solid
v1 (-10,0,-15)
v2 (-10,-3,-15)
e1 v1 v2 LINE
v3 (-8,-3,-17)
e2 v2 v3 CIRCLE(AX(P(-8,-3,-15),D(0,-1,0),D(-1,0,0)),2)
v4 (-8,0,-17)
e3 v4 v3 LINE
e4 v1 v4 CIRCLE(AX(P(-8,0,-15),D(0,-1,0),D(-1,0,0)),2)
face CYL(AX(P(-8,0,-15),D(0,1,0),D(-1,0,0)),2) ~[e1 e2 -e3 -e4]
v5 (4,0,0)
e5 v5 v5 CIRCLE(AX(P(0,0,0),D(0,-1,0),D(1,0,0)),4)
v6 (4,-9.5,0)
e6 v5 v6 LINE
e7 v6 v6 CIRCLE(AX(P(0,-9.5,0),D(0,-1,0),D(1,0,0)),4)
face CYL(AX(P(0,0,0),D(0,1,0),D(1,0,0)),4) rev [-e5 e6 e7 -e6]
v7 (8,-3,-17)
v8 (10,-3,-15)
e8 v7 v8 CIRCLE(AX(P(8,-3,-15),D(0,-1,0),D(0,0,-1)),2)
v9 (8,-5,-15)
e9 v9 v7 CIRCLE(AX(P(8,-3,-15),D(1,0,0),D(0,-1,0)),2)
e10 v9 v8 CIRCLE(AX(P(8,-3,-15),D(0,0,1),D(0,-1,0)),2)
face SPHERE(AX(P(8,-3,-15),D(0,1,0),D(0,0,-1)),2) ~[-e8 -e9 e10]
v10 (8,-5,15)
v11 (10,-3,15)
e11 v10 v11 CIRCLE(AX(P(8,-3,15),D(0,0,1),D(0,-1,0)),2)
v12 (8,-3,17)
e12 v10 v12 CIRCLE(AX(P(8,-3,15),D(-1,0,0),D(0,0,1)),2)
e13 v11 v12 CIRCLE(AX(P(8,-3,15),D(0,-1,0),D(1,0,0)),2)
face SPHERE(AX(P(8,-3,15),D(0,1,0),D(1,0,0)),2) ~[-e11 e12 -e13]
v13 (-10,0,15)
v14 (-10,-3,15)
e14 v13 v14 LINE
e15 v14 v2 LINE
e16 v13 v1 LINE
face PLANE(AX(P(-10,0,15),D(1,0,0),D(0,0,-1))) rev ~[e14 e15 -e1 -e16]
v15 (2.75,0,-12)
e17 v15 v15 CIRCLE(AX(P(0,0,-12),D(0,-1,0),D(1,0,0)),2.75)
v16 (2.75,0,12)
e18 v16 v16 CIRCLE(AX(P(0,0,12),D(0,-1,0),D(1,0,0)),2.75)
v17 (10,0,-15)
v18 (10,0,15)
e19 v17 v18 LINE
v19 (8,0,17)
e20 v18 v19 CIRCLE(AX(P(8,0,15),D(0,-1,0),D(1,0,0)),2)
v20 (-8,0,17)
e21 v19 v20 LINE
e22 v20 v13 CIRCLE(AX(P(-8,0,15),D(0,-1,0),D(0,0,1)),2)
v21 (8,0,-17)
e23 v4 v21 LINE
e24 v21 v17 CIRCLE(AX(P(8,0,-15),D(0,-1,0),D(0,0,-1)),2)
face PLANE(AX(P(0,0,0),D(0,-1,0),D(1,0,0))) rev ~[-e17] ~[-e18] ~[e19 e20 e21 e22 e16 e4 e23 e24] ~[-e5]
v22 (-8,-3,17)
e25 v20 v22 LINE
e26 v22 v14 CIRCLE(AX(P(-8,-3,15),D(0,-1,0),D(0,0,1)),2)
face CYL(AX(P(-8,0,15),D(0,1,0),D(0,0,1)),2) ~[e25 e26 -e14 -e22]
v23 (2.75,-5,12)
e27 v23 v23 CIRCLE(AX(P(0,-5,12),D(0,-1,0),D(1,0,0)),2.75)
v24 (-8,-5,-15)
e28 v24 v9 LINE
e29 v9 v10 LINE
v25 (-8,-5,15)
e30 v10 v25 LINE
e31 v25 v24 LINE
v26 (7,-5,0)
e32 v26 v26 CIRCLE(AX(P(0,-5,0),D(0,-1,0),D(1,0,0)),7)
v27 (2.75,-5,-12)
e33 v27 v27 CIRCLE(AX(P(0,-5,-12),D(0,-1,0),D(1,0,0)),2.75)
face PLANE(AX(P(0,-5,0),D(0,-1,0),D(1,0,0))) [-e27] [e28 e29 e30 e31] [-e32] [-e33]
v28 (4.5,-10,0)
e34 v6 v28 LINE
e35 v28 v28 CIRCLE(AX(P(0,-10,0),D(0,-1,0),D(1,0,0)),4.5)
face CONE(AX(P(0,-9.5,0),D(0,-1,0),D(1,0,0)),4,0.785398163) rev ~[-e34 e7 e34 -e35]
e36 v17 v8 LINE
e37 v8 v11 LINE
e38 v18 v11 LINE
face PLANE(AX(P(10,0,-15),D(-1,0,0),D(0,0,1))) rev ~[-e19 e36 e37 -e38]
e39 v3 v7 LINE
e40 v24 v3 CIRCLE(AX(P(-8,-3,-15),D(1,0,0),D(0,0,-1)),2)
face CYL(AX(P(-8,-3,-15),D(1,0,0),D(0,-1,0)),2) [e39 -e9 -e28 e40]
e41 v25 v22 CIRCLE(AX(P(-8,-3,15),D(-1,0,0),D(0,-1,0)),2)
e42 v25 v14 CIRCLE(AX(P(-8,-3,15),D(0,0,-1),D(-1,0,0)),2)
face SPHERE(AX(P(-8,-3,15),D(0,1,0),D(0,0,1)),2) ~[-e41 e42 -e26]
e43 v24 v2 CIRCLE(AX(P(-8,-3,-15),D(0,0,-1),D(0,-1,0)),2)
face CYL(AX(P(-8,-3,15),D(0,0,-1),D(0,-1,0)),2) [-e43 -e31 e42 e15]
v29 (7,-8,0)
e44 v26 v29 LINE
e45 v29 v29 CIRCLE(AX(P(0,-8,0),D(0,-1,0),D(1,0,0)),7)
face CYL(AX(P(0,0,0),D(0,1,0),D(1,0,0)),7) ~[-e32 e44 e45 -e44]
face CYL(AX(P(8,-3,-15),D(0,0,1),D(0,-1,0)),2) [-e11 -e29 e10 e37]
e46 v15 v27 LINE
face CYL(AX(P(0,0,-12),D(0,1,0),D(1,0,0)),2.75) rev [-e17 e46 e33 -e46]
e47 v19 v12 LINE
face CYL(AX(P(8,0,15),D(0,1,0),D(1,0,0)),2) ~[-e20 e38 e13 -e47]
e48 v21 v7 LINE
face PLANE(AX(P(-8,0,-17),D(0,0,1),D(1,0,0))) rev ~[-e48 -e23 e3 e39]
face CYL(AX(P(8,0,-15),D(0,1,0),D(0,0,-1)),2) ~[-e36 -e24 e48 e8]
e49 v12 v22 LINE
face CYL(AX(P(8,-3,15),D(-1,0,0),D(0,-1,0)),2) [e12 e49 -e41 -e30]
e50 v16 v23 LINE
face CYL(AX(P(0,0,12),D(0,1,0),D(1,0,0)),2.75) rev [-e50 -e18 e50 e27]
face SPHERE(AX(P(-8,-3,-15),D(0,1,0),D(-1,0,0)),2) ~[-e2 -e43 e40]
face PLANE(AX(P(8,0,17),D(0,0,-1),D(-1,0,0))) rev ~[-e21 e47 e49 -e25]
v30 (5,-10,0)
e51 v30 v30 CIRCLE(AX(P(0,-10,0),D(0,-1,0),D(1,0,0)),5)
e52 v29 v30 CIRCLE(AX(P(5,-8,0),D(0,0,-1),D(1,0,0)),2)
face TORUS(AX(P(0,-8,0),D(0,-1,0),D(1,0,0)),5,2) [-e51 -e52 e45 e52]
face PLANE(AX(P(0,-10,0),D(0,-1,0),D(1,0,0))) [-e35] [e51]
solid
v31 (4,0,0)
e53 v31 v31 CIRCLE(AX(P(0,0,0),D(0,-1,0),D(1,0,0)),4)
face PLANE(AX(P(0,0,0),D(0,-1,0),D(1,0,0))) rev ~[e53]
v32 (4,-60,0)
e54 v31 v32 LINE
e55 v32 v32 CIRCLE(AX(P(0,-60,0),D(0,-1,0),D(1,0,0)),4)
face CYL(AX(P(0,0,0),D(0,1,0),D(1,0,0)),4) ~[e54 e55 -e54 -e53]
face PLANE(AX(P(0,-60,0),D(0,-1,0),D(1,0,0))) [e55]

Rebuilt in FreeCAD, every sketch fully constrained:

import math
import FreeCAD as App
import Part
import Sketcher


def edges_at(feature, points):
    """Names of the edges that pass closest to the given points."""
    edges = feature.Shape.Edges
    near = lambda p: min(range(len(edges)), key=lambda i: edges[i].distToShape(Part.Vertex(*p))[0])
    return sorted({f"Edge{near(p) + 1}" for p in points})

doc = App.newDocument("Part")
body = doc.addObject("PartDesign::Body", "Body")

# Sketch on XZ plane
sketch1 = doc.addObject("Sketcher::SketchObject", "Sketch")
body.addObject(sketch1)
sketch1.AttachmentSupport = (doc.XZ_Plane, [""])
sketch1.MapMode = "FlatFace"
sketch1.addGeometry(Part.Circle(App.Vector(0, 0, 0), App.Vector(0, 0, 1), 7), False)
sketch1.addGeometry(Part.Circle(App.Vector(0, 0, 0), App.Vector(0, 0, 1), 4), False)
sketch1.addConstraint(Sketcher.Constraint("Coincident", 0, 3, -1, 1))
sketch1.addConstraint(Sketcher.Constraint("Coincident", 1, 3, -1, 1))
sketch1.addConstraint(Sketcher.Constraint("Diameter", 0, 14.0))
sketch1.addConstraint(Sketcher.Constraint("Diameter", 1, 8.0))
pad1 = doc.addObject("PartDesign::Pad", "Pad")
body.addObject(pad1)
pad1.Profile = sketch1
pad1.Length = 10

# Sketch on XZ plane
sketch2 = doc.addObject("Sketcher::SketchObject", "Sketch001")
body.addObject(sketch2)
sketch2.AttachmentSupport = (doc.XZ_Plane, [""])
sketch2.MapMode = "FlatFace"
sketch2.addGeometry(Part.ArcOfCircle(Part.Circle(App.Vector(8, 15, 0), App.Vector(0, 0, 1), 2), math.radians(0), math.radians(90)), False)
sketch2.addGeometry(Part.LineSegment(App.Vector(8, 17, 0), App.Vector(-8, 17, 0)), False)
sketch2.addGeometry(Part.ArcOfCircle(Part.Circle(App.Vector(-8, 15, 0), App.Vector(0, 0, 1), 2), math.radians(90), math.radians(180)), False)
sketch2.addGeometry(Part.LineSegment(App.Vector(-10, 15, 0), App.Vector(-10, -15, 0)), False)
sketch2.addGeometry(Part.ArcOfCircle(Part.Circle(App.Vector(-8, -15, 0), App.Vector(0, 0, 1), 2), math.radians(180), math.radians(270)), False)
sketch2.addGeometry(Part.LineSegment(App.Vector(-8, -17, 0), App.Vector(8, -17, 0)), False)
sketch2.addGeometry(Part.ArcOfCircle(Part.Circle(App.Vector(8, -15, 0), App.Vector(0, 0, 1), 2), math.radians(-90), math.radians(0)), False)
sketch2.addGeometry(Part.LineSegment(App.Vector(10, -15, 0), App.Vector(10, 15, 0)), False)
sketch2.addGeometry(Part.Circle(App.Vector(0, -12, 0), App.Vector(0, 0, 1), 2.8), False)
sketch2.addGeometry(Part.Circle(App.Vector(0, 0, 0), App.Vector(0, 0, 1), 7), False)
sketch2.addGeometry(Part.Circle(App.Vector(0, 12, 0), App.Vector(0, 0, 1), 2.8), False)
sketch2.addConstraint(Sketcher.Constraint("Tangent", 0, 2, 1, 1))
sketch2.addConstraint(Sketcher.Constraint("Tangent", 1, 2, 2, 1))
sketch2.addConstraint(Sketcher.Constraint("Tangent", 2, 2, 3, 1))
sketch2.addConstraint(Sketcher.Constraint("Tangent", 3, 2, 4, 1))
sketch2.addConstraint(Sketcher.Constraint("Tangent", 4, 2, 5, 1))
sketch2.addConstraint(Sketcher.Constraint("Tangent", 5, 2, 6, 1))
sketch2.addConstraint(Sketcher.Constraint("Tangent", 6, 2, 7, 1))
sketch2.addConstraint(Sketcher.Constraint("Tangent", 7, 2, 0, 1))
sketch2.addConstraint(Sketcher.Constraint("Horizontal", 1))
sketch2.addConstraint(Sketcher.Constraint("Vertical", 3))
sketch2.addConstraint(Sketcher.Constraint("Horizontal", 5))
sketch2.addConstraint(Sketcher.Constraint("Vertical", 7))
sketch2.addConstraint(Sketcher.Constraint("Coincident", 9, 3, -1, 1))
sketch2.addConstraint(Sketcher.Constraint("Equal", 0, 2))
sketch2.addConstraint(Sketcher.Constraint("Equal", 2, 4))
sketch2.addConstraint(Sketcher.Constraint("Equal", 4, 6))
sketch2.addConstraint(Sketcher.Constraint("Equal", 8, 10))
sketch2.addConstraint(Sketcher.Constraint("Symmetric", 0, 3, 4, 3, -1, 1))
sketch2.addConstraint(Sketcher.Constraint("Symmetric", 8, 3, 10, 3, -1, 1))
sketch2.addConstraint(Sketcher.Constraint("PointOnObject", 8, 3, -2))
sketch2.addConstraint(Sketcher.Constraint("Diameter", 9, 14.0))
sketch2.addConstraint(Sketcher.Constraint("Radius", 0, 2.0))
sketch2.addConstraint(Sketcher.Constraint("Diameter", 8, 5.5))
sketch2.addConstraint(Sketcher.Constraint("DistanceX", 1, 2, 1, 1, 16.0))
sketch2.addConstraint(Sketcher.Constraint("DistanceY", 3, 2, 3, 1, 30.0))
sketch2.addConstraint(Sketcher.Constraint("DistanceY", 8, 3, -1, 1, 12.0))
pad2 = doc.addObject("PartDesign::Pad", "Pad001")
body.addObject(pad2)
pad2.Profile = sketch2
pad2.Length = 5
doc.recompute()

fillet = doc.addObject("PartDesign::Fillet", "Fillet")
body.addObject(fillet)
fillet.Base = (pad2, edges_at(pad2, [(-7, -10, 0)]))
fillet.Radius = 2
doc.recompute()

fillet2 = doc.addObject("PartDesign::Fillet", "Fillet001")
body.addObject(fillet2)
fillet2.Base = (fillet, edges_at(fillet, [(10, -5, 0)]))
fillet2.Radius = 2
doc.recompute()

chamfer = doc.addObject("PartDesign::Chamfer", "Chamfer")
body.addObject(chamfer)
chamfer.Base = (fillet2, edges_at(fillet2, [(-5, -10, 0), (-4, -10, 0)]))
chamfer.Size = 0.5
body2 = doc.addObject("PartDesign::Body", "Body001")

# Sketch on XZ plane
sketch3 = doc.addObject("Sketcher::SketchObject", "Sketch002")
body2.addObject(sketch3)
sketch3.AttachmentSupport = (doc.getObject("XZ_Plane001"), [""])
sketch3.MapMode = "FlatFace"
sketch3.addGeometry(Part.Circle(App.Vector(0, 0, 0), App.Vector(0, 0, 1), 4), False)
sketch3.addConstraint(Sketcher.Constraint("Coincident", 0, 3, -1, 1))
sketch3.addConstraint(Sketcher.Constraint("Diameter", 0, 8.0))
pad3 = doc.addObject("PartDesign::Pad", "Pad002")
body2.addObject(pad3)
pad3.Profile = sketch3
pad3.Length = 60

doc.recompute()
